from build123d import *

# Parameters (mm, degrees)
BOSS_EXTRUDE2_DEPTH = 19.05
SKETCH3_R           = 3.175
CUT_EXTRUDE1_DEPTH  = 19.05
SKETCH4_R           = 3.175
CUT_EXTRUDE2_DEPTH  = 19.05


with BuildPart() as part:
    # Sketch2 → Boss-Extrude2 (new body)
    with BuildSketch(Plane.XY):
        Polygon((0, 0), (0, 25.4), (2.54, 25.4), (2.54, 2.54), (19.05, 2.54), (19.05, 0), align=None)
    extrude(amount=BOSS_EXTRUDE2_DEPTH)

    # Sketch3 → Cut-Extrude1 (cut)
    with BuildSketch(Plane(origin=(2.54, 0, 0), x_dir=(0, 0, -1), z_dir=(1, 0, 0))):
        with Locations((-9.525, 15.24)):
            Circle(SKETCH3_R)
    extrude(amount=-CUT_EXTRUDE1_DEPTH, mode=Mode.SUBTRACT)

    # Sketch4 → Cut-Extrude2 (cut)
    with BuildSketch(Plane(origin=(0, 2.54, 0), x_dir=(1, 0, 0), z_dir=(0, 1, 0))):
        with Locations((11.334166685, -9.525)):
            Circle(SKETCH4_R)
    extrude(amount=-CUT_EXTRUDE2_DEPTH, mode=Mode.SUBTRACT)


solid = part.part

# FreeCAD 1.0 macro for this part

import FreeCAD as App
import Part
import Sketcher
from FreeCAD import Vector
Q = App.Units.Quantity


def add_polygon(sketch, points):
    """Adds a closed chain of lines whose ends are joined by coincident constraints."""
    first, n = sketch.GeometryCount, len(points)
    for a, b in zip(points, points[1:] + points[:1]):
        sketch.addGeometry(Part.LineSegment(App.Vector(*a, 0), App.Vector(*b, 0)), False)
    for i in range(n):
        sketch.addConstraint(Sketcher.Constraint("Coincident", first + i, 2, first + (i + 1) % n, 1))

doc = App.newDocument("Part")
body = doc.addObject("PartDesign::Body", "Body")

# Sketch on XY plane
sketch1 = body.newObject("Sketcher::SketchObject", "Sketch")
sketch1.AttachmentSupport = (doc.getObject("XY_Plane"), [""])
sketch1.MapMode = "FlatFace"
add_polygon(sketch1, [(0, 25.4), (0, 0), (19.1, 0), (19.1, 2.5), (2.5, 2.5), (2.5, 25.4)])  # lines 0-5
sketch1.addConstraint([
    Sketcher.Constraint("Vertical", 0),
    Sketcher.Constraint("Horizontal", 1),
    Sketcher.Constraint("Vertical", 2),
    Sketcher.Constraint("Horizontal", 3),
    Sketcher.Constraint("Vertical", 4),
    Sketcher.Constraint("Horizontal", 5),
    Sketcher.Constraint("Coincident", 0, 2, -1, 1),
    Sketcher.Constraint("Equal", 5, 2),
    Sketcher.Constraint("DistanceY", 0, 2, 0, 1, Q("1 in")),
    Sketcher.Constraint("DistanceX", 5, 2, 5, 1, Q("0.1 in")),
    Sketcher.Constraint("DistanceX", 1, 1, 1, 2, Q("0.75 in")),
])
pad1 = body.newObject("PartDesign::Pad", "Pad")
pad1.Profile = sketch1
pad1.Length = Q("0.75 in")

# Sketch on YZ plane
sketch2 = body.newObject("Sketcher::SketchObject", "Sketch001")
sketch2.AttachmentSupport = (doc.getObject("YZ_Plane"), [""])
sketch2.MapMode = "FlatFace"
sketch2.AttachmentOffset = App.Placement(Vector(0, 0, 0.1 * 25.4), App.Rotation())
sketch2.addGeometry(Part.Circle(Vector(15.2, 9.5, 0), Vector(0, 0, 1), 3.2), False)
sketch2.addConstraint([
    Sketcher.Constraint("Diameter", 0, Q("0.25 in")),
    Sketcher.Constraint("DistanceX", -1, 1, 0, 3, Q("0.6 in")),
    Sketcher.Constraint("DistanceY", -1, 1, 0, 3, Q("0.375 in")),
])
pocket1 = body.newObject("PartDesign::Pocket", "Pocket")
pocket1.Profile = sketch2
pocket1.Length = Q("0.75 in")

# Sketch on XZ plane
sketch3 = body.newObject("Sketcher::SketchObject", "Sketch002")
sketch3.AttachmentSupport = (doc.getObject("XZ_Plane"), [""])
sketch3.MapMode = "FlatFace"
sketch3.AttachmentOffset = App.Placement(Vector(0, 0, -0.1 * 25.4), App.Rotation())
sketch3.addGeometry(Part.Circle(Vector(11.3, 9.5, 0), Vector(0, 0, 1), 3.2), False)
sketch3.addConstraint([
    Sketcher.Constraint("Diameter", 0, Q("0.25 in")),
    Sketcher.Constraint("DistanceY", -1, 1, 0, 3, Q("0.375 in")),
    Sketcher.Constraint("DistanceX", -1, 1, 0, 3, 11.334167),
])
pocket2 = body.newObject("PartDesign::Pocket", "Pocket001")
pocket2.Profile = sketch3
pocket2.Length = Q("0.75 in")
pocket2.Reversed = True

doc.recompute()
